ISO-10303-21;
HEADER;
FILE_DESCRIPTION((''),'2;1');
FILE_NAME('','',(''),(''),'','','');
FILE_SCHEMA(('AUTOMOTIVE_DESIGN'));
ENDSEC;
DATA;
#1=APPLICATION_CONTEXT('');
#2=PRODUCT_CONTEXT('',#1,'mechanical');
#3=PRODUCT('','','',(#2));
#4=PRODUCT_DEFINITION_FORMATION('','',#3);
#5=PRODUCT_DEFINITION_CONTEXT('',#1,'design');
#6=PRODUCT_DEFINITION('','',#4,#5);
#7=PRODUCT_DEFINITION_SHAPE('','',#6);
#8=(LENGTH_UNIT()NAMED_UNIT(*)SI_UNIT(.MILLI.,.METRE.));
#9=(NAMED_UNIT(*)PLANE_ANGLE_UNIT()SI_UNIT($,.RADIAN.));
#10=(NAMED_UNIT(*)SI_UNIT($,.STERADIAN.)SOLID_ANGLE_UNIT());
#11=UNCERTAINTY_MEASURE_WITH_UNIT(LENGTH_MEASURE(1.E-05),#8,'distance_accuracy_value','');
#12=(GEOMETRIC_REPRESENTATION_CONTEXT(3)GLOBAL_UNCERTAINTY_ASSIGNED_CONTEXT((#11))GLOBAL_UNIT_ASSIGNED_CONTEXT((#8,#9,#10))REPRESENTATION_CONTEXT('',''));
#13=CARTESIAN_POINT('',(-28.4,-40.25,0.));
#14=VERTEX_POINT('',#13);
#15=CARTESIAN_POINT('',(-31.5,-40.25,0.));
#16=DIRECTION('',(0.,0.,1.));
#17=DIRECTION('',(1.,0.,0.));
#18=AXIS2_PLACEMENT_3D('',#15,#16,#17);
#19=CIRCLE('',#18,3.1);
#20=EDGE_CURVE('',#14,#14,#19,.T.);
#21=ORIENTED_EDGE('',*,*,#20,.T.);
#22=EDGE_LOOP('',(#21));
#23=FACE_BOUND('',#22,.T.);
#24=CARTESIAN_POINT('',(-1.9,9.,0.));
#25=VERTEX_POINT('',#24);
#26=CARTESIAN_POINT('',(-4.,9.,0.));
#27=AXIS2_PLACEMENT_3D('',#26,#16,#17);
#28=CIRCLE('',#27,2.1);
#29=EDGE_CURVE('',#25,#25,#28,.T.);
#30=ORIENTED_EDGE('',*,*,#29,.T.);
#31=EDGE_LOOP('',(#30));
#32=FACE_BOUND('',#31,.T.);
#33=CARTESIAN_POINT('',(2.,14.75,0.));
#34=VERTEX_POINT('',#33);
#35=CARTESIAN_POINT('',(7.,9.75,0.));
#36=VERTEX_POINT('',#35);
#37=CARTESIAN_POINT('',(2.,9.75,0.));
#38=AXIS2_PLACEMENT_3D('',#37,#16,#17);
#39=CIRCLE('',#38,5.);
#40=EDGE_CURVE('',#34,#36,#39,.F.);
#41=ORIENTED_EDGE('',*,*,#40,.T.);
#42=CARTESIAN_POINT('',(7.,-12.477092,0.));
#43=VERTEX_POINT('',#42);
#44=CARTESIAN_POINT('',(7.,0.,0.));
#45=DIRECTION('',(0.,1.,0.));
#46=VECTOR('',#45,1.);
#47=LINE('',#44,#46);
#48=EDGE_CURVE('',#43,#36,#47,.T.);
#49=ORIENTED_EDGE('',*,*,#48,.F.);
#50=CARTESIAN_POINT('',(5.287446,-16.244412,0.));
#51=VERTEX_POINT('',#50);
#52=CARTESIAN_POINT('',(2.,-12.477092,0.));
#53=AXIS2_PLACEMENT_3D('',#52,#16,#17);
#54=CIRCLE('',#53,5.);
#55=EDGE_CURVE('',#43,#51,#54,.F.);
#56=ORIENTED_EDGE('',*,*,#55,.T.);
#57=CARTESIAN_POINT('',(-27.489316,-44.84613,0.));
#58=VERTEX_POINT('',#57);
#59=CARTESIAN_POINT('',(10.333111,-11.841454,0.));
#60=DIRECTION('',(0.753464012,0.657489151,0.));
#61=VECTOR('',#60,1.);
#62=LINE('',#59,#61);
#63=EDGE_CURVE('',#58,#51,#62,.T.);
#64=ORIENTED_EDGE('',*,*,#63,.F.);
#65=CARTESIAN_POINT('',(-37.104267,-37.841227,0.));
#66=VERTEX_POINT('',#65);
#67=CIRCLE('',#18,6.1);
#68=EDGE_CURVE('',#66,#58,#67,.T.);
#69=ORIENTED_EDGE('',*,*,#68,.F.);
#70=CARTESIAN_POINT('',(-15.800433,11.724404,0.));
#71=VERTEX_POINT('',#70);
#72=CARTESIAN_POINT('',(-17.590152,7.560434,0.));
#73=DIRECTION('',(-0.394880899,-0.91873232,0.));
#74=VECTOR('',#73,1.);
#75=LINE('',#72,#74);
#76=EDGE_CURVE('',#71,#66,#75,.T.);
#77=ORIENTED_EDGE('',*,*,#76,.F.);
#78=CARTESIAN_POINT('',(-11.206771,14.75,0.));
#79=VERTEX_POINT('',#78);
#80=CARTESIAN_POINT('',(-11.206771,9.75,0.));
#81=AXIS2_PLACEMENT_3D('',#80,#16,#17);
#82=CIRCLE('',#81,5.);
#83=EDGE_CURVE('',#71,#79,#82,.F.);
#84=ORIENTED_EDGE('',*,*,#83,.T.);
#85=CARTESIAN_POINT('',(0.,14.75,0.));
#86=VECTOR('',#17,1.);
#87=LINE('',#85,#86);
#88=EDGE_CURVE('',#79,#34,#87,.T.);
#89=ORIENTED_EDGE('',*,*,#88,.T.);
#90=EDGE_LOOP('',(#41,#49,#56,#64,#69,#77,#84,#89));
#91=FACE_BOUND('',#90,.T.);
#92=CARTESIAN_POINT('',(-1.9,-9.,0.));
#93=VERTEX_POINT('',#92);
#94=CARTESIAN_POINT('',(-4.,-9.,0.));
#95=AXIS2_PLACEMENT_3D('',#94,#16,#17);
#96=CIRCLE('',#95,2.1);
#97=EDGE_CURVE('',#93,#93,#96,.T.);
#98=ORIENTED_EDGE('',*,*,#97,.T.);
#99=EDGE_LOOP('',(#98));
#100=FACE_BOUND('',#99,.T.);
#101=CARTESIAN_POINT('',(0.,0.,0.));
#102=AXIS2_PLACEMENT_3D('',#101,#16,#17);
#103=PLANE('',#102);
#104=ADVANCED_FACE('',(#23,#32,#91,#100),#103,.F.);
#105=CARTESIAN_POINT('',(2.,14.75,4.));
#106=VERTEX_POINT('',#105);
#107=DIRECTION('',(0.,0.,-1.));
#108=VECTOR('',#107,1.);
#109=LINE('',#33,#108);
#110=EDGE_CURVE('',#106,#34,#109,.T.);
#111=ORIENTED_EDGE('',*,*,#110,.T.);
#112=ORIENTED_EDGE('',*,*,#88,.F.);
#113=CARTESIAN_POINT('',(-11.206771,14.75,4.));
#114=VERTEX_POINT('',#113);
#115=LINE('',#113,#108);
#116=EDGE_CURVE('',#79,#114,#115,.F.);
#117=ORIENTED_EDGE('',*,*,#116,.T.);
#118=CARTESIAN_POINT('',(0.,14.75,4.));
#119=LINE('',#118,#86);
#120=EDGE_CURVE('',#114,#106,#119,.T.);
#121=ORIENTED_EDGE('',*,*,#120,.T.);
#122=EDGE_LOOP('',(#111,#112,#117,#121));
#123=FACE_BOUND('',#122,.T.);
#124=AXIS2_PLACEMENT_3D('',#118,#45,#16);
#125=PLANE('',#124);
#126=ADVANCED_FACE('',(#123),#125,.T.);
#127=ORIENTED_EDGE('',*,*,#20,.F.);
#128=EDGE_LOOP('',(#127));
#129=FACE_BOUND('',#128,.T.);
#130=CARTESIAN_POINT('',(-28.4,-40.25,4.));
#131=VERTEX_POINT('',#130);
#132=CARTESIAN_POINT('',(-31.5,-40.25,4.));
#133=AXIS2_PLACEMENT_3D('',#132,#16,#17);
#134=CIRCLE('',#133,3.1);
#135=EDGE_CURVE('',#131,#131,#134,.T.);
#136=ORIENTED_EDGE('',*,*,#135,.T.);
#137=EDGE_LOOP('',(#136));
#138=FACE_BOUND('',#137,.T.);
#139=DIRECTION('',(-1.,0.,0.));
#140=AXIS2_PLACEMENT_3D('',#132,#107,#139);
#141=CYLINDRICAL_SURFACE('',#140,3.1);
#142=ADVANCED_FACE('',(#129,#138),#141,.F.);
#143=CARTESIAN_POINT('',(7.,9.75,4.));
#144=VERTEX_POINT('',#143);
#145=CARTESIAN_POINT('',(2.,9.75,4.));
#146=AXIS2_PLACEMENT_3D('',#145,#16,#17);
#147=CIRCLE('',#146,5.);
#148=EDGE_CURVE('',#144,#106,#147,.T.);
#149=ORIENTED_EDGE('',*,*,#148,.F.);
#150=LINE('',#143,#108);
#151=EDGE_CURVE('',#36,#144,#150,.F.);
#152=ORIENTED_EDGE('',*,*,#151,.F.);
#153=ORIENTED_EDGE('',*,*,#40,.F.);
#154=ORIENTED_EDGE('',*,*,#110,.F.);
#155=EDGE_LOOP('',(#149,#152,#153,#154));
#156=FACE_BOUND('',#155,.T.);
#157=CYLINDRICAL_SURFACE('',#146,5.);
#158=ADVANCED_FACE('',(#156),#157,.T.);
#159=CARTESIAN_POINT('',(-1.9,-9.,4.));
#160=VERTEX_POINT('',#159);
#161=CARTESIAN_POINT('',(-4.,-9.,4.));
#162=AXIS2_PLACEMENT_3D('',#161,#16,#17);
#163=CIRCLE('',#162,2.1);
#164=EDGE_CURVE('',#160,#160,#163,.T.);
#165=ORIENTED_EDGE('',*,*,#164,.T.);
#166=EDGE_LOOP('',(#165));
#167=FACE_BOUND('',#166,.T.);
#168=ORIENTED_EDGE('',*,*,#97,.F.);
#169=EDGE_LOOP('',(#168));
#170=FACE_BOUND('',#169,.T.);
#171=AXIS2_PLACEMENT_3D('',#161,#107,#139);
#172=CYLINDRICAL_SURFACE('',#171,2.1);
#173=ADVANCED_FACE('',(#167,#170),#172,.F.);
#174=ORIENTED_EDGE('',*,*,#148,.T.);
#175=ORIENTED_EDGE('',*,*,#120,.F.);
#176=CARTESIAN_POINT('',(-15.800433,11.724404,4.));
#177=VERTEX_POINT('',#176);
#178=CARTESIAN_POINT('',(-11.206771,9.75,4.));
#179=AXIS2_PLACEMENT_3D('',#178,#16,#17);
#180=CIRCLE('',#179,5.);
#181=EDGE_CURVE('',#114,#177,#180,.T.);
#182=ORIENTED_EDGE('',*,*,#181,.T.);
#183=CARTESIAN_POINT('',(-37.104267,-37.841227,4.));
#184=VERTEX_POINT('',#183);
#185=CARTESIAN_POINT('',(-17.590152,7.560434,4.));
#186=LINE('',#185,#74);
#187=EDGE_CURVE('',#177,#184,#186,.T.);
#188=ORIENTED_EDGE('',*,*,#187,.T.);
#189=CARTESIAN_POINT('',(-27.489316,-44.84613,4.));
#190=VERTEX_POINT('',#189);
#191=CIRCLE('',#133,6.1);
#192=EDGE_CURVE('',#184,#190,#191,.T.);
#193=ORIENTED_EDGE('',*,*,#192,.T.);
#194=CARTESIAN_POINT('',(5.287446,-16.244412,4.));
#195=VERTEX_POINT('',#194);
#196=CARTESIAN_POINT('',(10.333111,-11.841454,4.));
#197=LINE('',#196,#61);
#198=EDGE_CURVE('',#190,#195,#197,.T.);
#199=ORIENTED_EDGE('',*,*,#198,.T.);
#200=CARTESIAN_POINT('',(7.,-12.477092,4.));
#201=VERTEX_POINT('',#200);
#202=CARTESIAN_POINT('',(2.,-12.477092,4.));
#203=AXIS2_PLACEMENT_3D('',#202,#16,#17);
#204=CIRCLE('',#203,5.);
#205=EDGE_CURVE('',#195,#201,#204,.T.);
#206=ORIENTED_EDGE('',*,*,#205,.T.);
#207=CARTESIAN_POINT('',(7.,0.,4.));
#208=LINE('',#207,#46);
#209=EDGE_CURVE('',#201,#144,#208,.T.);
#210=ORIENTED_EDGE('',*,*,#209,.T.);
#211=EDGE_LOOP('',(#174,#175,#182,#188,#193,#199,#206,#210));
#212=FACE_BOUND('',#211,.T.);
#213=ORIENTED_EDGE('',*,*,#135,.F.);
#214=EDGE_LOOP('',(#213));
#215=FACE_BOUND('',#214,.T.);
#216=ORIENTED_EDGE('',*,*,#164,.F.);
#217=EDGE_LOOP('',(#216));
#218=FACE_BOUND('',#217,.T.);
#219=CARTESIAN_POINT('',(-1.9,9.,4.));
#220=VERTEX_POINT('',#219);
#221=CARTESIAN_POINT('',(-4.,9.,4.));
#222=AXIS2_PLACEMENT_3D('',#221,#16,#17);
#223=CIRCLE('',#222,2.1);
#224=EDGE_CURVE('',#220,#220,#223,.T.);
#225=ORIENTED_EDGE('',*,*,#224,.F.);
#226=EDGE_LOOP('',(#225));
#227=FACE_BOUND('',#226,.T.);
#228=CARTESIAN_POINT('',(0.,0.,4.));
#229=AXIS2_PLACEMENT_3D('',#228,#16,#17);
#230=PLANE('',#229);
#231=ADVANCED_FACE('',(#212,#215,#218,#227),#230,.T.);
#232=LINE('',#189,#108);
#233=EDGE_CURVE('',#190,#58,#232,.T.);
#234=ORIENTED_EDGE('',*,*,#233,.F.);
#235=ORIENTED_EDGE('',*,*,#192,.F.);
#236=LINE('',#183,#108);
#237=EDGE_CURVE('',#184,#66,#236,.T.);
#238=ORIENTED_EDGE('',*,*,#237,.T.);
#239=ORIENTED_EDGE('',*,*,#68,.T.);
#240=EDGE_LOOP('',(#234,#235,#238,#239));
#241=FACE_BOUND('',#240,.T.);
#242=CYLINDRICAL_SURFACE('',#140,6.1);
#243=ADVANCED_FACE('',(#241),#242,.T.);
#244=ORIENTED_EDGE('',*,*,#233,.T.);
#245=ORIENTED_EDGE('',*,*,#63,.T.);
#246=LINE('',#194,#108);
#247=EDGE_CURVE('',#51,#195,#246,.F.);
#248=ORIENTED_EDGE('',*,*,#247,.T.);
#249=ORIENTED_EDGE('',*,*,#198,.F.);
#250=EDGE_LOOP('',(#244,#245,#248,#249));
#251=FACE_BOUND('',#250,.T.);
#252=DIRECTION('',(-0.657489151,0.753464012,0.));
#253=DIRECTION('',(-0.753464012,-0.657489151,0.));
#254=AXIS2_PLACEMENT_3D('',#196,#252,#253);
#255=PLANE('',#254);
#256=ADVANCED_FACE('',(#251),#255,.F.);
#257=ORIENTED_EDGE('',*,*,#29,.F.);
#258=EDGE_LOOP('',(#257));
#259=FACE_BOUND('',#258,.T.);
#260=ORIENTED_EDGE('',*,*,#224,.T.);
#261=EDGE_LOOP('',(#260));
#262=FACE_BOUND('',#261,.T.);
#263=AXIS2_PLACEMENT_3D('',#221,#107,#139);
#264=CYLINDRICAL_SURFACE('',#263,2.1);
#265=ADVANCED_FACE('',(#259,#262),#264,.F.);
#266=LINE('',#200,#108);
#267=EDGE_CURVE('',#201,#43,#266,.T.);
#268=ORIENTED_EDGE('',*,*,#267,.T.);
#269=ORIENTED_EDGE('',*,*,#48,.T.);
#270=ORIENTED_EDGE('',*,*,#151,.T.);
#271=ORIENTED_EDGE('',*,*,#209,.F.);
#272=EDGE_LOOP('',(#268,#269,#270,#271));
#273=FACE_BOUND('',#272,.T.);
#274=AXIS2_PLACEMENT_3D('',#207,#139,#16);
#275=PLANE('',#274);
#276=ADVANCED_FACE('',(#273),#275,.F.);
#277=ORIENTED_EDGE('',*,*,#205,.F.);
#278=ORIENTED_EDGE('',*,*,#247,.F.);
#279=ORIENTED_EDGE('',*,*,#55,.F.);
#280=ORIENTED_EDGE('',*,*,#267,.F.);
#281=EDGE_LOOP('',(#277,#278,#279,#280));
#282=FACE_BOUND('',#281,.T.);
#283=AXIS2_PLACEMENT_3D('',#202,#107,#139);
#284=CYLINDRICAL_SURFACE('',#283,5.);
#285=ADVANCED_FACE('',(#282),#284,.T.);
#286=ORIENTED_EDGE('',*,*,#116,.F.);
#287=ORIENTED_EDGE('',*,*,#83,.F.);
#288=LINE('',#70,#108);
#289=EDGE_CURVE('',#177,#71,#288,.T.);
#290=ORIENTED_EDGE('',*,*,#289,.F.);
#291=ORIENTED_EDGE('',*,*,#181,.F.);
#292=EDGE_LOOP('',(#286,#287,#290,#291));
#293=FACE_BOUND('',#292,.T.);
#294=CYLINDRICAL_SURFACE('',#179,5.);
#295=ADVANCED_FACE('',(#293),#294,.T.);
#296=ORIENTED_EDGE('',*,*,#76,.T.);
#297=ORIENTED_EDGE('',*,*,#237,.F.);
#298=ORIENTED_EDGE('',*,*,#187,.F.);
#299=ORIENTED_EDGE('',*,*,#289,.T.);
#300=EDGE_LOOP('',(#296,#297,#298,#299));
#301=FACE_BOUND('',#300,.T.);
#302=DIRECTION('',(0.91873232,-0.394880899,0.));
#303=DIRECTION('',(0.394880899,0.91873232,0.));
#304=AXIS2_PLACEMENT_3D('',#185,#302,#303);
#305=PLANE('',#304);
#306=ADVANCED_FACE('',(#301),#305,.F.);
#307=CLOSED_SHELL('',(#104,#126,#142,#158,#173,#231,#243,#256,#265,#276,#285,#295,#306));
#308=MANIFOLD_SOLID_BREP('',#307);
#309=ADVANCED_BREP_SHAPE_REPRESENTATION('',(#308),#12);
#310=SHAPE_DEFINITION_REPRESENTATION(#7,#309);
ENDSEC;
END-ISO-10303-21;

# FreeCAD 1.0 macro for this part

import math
import FreeCAD as App
import Part
import Sketcher
from FreeCAD import Vector
Q = App.Units.Quantity


def edges_at(feature, points):
    """Names of the edges that pass closest to the given points."""
    edges = feature.Shape.Edges
    near = lambda p: min(range(len(edges)), key=lambda i: edges[i].distToShape(Part.Vertex(*p))[0])
    return sorted({f"Edge{near(p) + 1}" for p in points})

doc = App.newDocument("Part")
body = doc.addObject("PartDesign::Body", "Body")

sketch1 = body.newObject("Sketcher::SketchObject", "Sketch")
sketch1.AttachmentSupport = (doc.getObject("XY_Plane"), [""])
sketch1.MapMode = "FlatFace"
sketch1.addGeometry(Part.LineSegment(Vector(-14.5, 14.75, 0), Vector(-37.104267, -37.841227, 0)), False)
sketch1.addGeometry(Part.ArcOfCircle(Part.Circle(Vector(-31.5, -40.25, 0), Vector(0, 0, 1), 6.1), math.radians(156.741454), math.radians(311.108661)), False)
sketch1.addGeometry(Part.LineSegment(Vector(-27.489316, -44.84613, 0), Vector(7, -14.75, 0)), False)
sketch1.addGeometry(Part.LineSegment(Vector(7, -14.75, 0), Vector(7, 14.75, 0)), False)
sketch1.addGeometry(Part.LineSegment(Vector(7, 14.75, 0), Vector(-14.5, 14.75, 0)), False)
sketch1.addGeometry(Part.Circle(Vector(-31.5, -40.25, 0), Vector(0, 0, 1), 3.1), False)
sketch1.addGeometry(Part.Circle(Vector(-4, -9, 0), Vector(0, 0, 1), 2.1), False)
sketch1.addGeometry(Part.Circle(Vector(-4, 9, 0), Vector(0, 0, 1), 2.1), False)
sketch1.addConstraint(Sketcher.Constraint("Tangent", 0, 2, 1, 1))
sketch1.addConstraint(Sketcher.Constraint("Tangent", 1, 2, 2, 1))
sketch1.addConstraint(Sketcher.Constraint("Coincident", 2, 2, 3, 1))
sketch1.addConstraint(Sketcher.Constraint("Coincident", 3, 2, 4, 1))
sketch1.addConstraint(Sketcher.Constraint("Coincident", 4, 2, 0, 1))
sketch1.addConstraint(Sketcher.Constraint("Vertical", 3))
sketch1.addConstraint(Sketcher.Constraint("Horizontal", 4))
sketch1.addConstraint(Sketcher.Constraint("Coincident", 5, 3, 1, 3))
sketch1.addConstraint(Sketcher.Constraint("Equal", 6, 7))
sketch1.addConstraint(Sketcher.Constraint("Symmetric", 6, 3, 7, 3, -1))
sketch1.addConstraint(Sketcher.Constraint("Diameter", 5, Q("6.2 mm")))
sketch1.addConstraint(Sketcher.Constraint("Diameter", 6, Q("4.2 mm")))
sketch1.addConstraint(Sketcher.Constraint("Radius", 1, Q("6.1 mm")))
sketch1.addConstraint(Sketcher.Constraint("DistanceX", 4, 2, 4, 1, Q("21.5 mm")))
sketch1.addConstraint(Sketcher.Constraint("DistanceY", 3, 1, 3, 2, Q("29.5 mm")))
sketch1.addConstraint(Sketcher.Constraint("DistanceX", 6, 3, -1, 1, Q("4 mm")))
sketch1.addConstraint(Sketcher.Constraint("DistanceY", 6, 3, -1, 1, Q("9 mm")))
sketch1.addConstraint(Sketcher.Constraint("DistanceX", -1, 1, 2, 2, Q("7 mm")))
sketch1.addConstraint(Sketcher.Constraint("DistanceY", 1, 3, 3, 2, Q("55 mm")))
sketch1.addConstraint(Sketcher.Constraint("DistanceX", 1, 3, -1, 1, Q("31.5 mm")))
sketch1.addConstraint(Sketcher.Constraint("DistanceY", 1, 3, -1, 1, Q("40.25 mm")))
pad1 = body.newObject("PartDesign::Pad", "Pad")
pad1.Profile = sketch1
pad1.Length = 4
doc.recompute()

fillet = body.newObject("PartDesign::Fillet", "Fillet")
fillet.Base = (pad1, edges_at(pad1, [(-14.5, 14.75, 2), (7, 14.75, 2), (7, -14.75, 2)]))
fillet.Radius = 5

doc.recompute()
